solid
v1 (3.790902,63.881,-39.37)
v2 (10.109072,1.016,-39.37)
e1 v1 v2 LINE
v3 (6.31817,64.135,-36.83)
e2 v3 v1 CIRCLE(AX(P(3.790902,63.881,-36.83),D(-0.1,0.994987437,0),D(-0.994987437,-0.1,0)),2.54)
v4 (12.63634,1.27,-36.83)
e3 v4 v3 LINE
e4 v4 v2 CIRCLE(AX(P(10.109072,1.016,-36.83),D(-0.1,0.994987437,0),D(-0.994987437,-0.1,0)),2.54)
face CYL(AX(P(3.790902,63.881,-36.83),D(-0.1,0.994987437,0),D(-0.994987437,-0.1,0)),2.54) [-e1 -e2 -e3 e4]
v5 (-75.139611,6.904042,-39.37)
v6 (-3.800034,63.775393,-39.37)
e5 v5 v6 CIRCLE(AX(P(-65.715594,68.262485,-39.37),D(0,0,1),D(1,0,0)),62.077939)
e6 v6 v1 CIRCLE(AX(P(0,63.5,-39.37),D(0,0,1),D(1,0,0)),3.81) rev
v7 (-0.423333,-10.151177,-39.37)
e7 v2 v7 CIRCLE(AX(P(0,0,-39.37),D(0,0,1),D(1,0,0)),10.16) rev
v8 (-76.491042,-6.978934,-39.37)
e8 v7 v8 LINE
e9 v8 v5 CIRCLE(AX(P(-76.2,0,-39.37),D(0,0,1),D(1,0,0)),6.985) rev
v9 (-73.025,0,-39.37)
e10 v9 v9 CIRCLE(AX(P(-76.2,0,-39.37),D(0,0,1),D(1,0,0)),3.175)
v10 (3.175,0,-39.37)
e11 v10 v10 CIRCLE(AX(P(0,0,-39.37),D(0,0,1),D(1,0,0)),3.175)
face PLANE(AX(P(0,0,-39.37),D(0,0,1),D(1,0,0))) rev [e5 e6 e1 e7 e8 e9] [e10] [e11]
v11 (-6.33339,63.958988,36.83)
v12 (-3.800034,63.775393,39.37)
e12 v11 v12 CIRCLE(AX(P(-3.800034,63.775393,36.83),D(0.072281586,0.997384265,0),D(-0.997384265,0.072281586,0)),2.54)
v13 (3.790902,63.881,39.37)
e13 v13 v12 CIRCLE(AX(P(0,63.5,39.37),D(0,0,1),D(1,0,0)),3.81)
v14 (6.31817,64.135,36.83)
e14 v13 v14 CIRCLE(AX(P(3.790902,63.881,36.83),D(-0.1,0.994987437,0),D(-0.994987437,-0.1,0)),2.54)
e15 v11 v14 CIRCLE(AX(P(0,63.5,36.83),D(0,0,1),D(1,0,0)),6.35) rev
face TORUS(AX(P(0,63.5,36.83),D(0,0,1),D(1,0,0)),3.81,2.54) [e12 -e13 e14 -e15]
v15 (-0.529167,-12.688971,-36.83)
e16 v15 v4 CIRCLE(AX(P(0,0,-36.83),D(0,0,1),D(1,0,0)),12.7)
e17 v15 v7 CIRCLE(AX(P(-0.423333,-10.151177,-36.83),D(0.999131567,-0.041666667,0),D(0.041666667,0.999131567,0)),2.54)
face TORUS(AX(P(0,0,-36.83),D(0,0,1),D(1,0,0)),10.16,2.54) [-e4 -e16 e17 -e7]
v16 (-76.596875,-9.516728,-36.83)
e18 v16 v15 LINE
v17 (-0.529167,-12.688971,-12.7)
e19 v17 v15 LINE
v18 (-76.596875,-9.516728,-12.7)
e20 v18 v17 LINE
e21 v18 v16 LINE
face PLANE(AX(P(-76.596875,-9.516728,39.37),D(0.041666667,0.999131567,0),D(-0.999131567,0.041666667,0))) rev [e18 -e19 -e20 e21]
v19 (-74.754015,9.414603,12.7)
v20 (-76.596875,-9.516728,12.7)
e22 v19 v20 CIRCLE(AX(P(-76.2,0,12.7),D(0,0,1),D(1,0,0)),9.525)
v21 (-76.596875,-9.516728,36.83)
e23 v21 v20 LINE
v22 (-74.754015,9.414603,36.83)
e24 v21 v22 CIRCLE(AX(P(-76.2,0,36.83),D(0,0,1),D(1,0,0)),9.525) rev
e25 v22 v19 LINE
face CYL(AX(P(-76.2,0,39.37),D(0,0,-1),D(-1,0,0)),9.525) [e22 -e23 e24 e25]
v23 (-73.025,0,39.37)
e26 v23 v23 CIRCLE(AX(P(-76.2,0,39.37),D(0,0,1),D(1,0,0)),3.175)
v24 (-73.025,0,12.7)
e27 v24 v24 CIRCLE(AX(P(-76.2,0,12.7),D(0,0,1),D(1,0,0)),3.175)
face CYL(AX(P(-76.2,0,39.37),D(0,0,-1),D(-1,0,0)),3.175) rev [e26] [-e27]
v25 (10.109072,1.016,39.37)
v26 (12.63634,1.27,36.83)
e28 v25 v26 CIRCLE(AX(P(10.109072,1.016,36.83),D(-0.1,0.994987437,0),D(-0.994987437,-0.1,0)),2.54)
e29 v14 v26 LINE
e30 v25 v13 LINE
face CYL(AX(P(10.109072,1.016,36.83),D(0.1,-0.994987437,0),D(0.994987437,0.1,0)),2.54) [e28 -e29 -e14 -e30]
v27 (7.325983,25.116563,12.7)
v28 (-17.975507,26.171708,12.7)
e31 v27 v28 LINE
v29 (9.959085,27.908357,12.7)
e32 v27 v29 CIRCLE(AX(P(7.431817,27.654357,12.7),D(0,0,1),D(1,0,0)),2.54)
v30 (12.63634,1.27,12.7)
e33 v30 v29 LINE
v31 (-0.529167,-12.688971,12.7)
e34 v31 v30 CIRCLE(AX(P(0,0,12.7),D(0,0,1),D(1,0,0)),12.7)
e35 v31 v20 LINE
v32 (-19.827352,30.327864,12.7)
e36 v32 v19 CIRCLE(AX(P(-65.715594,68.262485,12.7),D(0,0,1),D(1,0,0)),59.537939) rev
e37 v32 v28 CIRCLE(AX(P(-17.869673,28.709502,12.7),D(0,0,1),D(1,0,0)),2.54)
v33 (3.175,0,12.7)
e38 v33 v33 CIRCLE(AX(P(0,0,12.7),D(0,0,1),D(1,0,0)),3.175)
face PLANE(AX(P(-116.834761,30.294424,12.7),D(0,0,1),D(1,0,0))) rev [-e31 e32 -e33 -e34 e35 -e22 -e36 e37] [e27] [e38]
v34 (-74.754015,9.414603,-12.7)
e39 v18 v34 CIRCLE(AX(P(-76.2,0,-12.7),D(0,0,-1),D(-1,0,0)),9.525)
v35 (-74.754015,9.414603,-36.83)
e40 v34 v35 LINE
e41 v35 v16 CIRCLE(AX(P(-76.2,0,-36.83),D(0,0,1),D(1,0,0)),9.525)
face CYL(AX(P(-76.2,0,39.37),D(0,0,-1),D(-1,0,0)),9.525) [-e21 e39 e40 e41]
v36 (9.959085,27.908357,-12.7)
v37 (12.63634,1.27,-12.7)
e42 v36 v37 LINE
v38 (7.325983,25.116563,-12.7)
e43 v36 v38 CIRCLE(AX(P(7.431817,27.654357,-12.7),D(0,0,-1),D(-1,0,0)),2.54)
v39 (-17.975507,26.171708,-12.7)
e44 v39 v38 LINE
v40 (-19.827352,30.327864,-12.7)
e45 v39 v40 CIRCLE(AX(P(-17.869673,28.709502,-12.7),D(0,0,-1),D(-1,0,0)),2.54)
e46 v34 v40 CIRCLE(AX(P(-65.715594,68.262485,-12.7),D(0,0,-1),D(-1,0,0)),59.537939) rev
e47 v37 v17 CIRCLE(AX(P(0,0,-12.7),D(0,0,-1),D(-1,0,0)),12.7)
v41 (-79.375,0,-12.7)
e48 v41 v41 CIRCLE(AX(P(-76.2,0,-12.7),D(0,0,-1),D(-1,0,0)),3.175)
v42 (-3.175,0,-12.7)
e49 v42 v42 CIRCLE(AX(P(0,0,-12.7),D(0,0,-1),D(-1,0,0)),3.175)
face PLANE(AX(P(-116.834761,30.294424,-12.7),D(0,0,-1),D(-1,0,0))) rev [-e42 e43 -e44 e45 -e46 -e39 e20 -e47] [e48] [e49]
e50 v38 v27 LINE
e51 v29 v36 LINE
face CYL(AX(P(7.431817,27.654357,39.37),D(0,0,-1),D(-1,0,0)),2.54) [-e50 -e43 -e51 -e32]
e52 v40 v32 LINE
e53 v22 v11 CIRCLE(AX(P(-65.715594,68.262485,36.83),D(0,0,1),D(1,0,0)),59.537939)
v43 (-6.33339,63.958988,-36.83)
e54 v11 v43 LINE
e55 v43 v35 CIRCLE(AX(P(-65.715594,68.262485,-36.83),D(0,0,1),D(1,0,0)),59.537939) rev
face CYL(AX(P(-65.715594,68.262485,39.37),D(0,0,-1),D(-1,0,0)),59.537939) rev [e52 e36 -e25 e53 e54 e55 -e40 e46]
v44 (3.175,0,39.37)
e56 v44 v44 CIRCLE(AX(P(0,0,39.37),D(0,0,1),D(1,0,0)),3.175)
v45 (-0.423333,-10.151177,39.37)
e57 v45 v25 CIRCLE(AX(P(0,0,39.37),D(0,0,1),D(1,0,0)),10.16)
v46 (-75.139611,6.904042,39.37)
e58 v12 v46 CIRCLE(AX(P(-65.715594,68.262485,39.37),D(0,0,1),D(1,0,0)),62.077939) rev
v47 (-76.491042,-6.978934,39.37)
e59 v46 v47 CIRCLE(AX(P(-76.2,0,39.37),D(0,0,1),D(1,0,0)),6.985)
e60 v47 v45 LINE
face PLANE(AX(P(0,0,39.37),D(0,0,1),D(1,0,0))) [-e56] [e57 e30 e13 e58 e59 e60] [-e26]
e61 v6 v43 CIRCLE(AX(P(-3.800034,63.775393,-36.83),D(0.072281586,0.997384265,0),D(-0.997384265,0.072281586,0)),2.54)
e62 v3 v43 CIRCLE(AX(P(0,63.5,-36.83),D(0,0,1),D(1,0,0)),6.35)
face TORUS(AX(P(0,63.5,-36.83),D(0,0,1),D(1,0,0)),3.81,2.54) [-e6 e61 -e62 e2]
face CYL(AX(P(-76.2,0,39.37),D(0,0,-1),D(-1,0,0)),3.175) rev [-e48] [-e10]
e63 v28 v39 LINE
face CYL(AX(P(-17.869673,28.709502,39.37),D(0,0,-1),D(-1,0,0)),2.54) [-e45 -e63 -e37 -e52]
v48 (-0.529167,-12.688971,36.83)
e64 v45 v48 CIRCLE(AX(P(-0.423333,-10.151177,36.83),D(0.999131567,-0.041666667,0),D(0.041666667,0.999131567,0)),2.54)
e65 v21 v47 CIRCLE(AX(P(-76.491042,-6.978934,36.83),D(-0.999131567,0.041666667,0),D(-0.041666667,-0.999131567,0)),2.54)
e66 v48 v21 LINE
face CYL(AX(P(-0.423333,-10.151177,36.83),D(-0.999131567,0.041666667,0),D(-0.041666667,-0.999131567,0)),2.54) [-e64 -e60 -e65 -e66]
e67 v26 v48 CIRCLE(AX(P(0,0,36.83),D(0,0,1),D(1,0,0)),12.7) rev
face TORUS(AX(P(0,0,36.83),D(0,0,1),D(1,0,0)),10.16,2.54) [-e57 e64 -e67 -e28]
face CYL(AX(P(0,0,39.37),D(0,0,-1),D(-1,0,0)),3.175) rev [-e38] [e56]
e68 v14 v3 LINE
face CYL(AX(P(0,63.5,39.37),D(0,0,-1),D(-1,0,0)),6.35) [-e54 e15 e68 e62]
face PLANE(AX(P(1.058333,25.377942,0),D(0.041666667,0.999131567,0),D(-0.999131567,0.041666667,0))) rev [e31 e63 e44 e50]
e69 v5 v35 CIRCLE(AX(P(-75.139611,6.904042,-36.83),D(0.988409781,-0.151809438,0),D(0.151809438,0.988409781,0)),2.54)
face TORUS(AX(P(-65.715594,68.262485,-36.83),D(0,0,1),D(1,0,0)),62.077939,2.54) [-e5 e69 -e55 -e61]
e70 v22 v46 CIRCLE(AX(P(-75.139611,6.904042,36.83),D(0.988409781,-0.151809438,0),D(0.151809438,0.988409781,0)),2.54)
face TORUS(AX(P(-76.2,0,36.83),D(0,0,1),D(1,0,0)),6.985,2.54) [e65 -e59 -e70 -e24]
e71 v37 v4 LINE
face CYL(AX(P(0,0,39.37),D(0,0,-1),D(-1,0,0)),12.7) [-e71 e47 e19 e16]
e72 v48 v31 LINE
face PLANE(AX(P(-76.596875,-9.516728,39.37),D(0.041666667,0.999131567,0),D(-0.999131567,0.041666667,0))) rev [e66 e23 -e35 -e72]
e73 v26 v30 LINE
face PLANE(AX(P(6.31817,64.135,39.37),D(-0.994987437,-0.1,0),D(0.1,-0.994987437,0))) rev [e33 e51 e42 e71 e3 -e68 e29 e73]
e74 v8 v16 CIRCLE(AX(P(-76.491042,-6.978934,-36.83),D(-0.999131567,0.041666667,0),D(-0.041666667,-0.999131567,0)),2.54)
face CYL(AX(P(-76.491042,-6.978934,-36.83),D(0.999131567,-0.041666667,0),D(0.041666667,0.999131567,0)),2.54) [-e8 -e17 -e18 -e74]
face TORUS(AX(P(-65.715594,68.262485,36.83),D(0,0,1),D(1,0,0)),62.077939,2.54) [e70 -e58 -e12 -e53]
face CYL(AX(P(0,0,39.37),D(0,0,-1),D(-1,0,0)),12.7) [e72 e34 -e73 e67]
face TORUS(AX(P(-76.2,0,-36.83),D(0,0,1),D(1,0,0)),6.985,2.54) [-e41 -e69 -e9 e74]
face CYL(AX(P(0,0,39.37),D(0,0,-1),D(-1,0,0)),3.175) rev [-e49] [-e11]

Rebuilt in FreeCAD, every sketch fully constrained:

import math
import FreeCAD as App
import Part
import Sketcher
from FreeCAD import Vector
Q = App.Units.Quantity


def edges_at(feature, points):
    """Names of the edges that pass closest to the given points."""
    edges = feature.Shape.Edges
    near = lambda p: min(range(len(edges)), key=lambda i: edges[i].distToShape(Part.Vertex(*p))[0])
    return sorted({f"Edge{near(p) + 1}" for p in points})


def add_polygon(sketch, points):
    """Adds a closed chain of lines whose ends are joined by coincident constraints."""
    first, n = sketch.GeometryCount, len(points)
    for a, b in zip(points, points[1:] + points[:1]):
        sketch.addGeometry(Part.LineSegment(App.Vector(*a, 0), App.Vector(*b, 0)), False)
    for i in range(n):
        sketch.addConstraint(Sketcher.Constraint("Coincident", first + i, 2, first + (i + 1) % n, 1))

doc = App.newDocument("Part")
body = doc.addObject("PartDesign::Body", "Body")

# Sketch on XY plane
sketch1 = body.newObject("Sketcher::SketchObject", "Sketch")
sketch1.AttachmentSupport = (doc.getObject("XY_Plane"), [""])
sketch1.MapMode = "FlatFace"
sketch1.addGeometry(Part.LineSegment(Vector(-76.6, -9.5, 0), Vector(-0.5, -12.7, 0)), False)
sketch1.addGeometry(Part.ArcOfCircle(Part.Circle(Vector(0, 0, 0), Vector(0, 0, 1), 12.7), math.radians(-92), math.radians(6)), False)
sketch1.addGeometry(Part.LineSegment(Vector(12.6, 1.3, 0), Vector(6.3, 64.1, 0)), False)
sketch1.addGeometry(Part.ArcOfCircle(Part.Circle(Vector(0, 63.5, 0), Vector(0, 0, 1), 6.3), math.radians(6), math.radians(176)), False)
sketch1.addGeometry(Part.ArcOfCircle(Part.Circle(Vector(-65.7, 68.3, 0), Vector(0, 0, 1), 59.5), math.radians(-99), math.radians(-4)), False)
sketch1.addGeometry(Part.ArcOfCircle(Part.Circle(Vector(-76.2, 0, 0), Vector(0, 0, 1), 9.5), math.radians(81), math.radians(268)), False)
sketch1.addGeometry(Part.Circle(Vector(-76.2, 0, 0), Vector(0, 0, 1), 3.2), False)
sketch1.addGeometry(Part.Circle(Vector(0, 0, 0), Vector(0, 0, 1), 3.2), False)
sketch1.addConstraint(Sketcher.Constraint("Tangent", 0, 2, 1, 1))
sketch1.addConstraint(Sketcher.Constraint("Tangent", 1, 2, 2, 1))
sketch1.addConstraint(Sketcher.Constraint("Tangent", 2, 2, 3, 1))
sketch1.addConstraint(Sketcher.Constraint("Tangent", 3, 2, 4, 2))
sketch1.addConstraint(Sketcher.Constraint("Tangent", 4, 1, 5, 1))
sketch1.addConstraint(Sketcher.Constraint("Tangent", 5, 2, 0, 1))
sketch1.addConstraint(Sketcher.Constraint("Coincident", 1, 3, -1, 1))
sketch1.addConstraint(Sketcher.Constraint("Coincident", 7, 3, -1, 1))
sketch1.addConstraint(Sketcher.Constraint("Coincident", 6, 3, 5, 3))
sketch1.addConstraint(Sketcher.Constraint("Equal", 6, 7))
sketch1.addConstraint(Sketcher.Constraint("PointOnObject", 3, 3, -2))
sketch1.addConstraint(Sketcher.Constraint("PointOnObject", 5, 3, -1))
sketch1.addConstraint(Sketcher.Constraint("Radius", 1, Q("0.5 in")))
sketch1.addConstraint(Sketcher.Constraint("Diameter", 6, Q("0.25 in")))
sketch1.addConstraint(Sketcher.Constraint("Radius", 3, Q("0.25 in")))
sketch1.addConstraint(Sketcher.Constraint("DistanceX", 5, 3, -1, 1, Q("3 in")))
sketch1.addConstraint(Sketcher.Constraint("Radius", 5, Q("0.375 in")))
sketch1.addConstraint(Sketcher.Constraint("DistanceY", -1, 1, 3, 3, Q("2.5 in")))
sketch1.addConstraint(Sketcher.Constraint("Radius", 4, Q("59.537939 mm")))
pad1 = body.newObject("PartDesign::Pad", "Pad")
pad1.Profile = sketch1
pad1.Length = Q("3.1 in")
pad1.Midplane = True

# Sketch on an angled plane
sketch2 = body.newObject("Sketcher::SketchObject", "Sketch001")
sketch2.Placement = App.Placement(Vector(-0.529167, -12.688971, 0), App.Rotation(Vector(0.999131567, -0.041666667, 0), Vector(0, 0, 0.999999999), Vector(-0.041666667, -0.999131567, 0), "ZXY"))
add_polygon(sketch2, [(-118, 13), (-118, -13), (35, -13), (35, 13)])  # lines 0-3
sketch2.addConstraint(Sketcher.Constraint("Vertical", 0))
sketch2.addConstraint(Sketcher.Constraint("Horizontal", 1))
sketch2.addConstraint(Sketcher.Constraint("Vertical", 2))
sketch2.addConstraint(Sketcher.Constraint("Horizontal", 3))
sketch2.addConstraint(Sketcher.Constraint("DistanceY", 0, 2, 0, 1, Q("1 in")))
sketch2.addConstraint(Sketcher.Constraint("DistanceY", 0, 2, -1, 1, Q("0.5 in")))
sketch2.addConstraint(Sketcher.Constraint("DistanceX", 1, 1, 1, 2, Q("153.048335 mm")))
sketch2.addConstraint(Sketcher.Constraint("DistanceX", -1, 1, 1, 2, Q("35.05277 mm")))
pocket1 = body.newObject("PartDesign::Pocket", "Pocket")
pocket1.Profile = sketch2
pocket1.Length = Q("1.5 in")
doc.recompute()

fillet = body.newObject("PartDesign::Fillet", "Fillet")
fillet.Base = (pocket1, edges_at(pocket1, [(-23.383, 26.397, 0), (10.252, 24.995, 0)]))
fillet.Radius = Q("0.1 in")
doc.recompute()

fillet2 = body.newObject("PartDesign::Fillet", "Fillet001")
fillet2.Base = (fillet, edges_at(fillet, [
    (-0.088, 69.849, 39.37),
    (-28.602, 21.707, 39.37),
    (-85.68, 0.923, 39.37),
    (-38.563, -11.103, 39.37),
    (9.239, -8.714, 39.37),
    (-38.563, -11.103, -39.37),
    (-85.68, 0.923, -39.37),
    (-28.602, 21.707, -39.37),
    (9.477, 32.703, 39.37),
    (-0.088, 69.849, -39.37),
    (9.477, 32.703, -39.37),
    (9.239, -8.714, -39.37),
]))
fillet2.Radius = Q("0.1 in")

doc.recompute()
